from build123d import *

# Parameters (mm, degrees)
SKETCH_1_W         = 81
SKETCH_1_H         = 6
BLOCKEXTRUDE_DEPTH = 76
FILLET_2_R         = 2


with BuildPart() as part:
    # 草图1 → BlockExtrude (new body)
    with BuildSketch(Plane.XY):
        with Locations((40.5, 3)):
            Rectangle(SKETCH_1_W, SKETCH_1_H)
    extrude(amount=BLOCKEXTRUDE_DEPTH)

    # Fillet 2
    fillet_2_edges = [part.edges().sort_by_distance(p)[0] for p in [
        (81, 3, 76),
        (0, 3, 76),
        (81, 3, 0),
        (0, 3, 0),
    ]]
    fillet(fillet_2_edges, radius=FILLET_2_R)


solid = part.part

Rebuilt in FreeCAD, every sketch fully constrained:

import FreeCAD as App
import Part
import Sketcher
from FreeCAD import Vector
Q = App.Units.Quantity


def edges_at(feature, points):
    """Names of the edges that pass closest to the given points."""
    edges = feature.Shape.Edges
    near = lambda p: min(range(len(edges)), key=lambda i: edges[i].distToShape(Part.Vertex(*p))[0])
    return sorted({f"Edge{near(p) + 1}" for p in points})

doc = App.newDocument("Part")
body = doc.addObject("PartDesign::Body", "Body")

# Sketch on XY plane
sketch1 = body.newObject("Sketcher::SketchObject", "Sketch")
sketch1.AttachmentSupport = (doc.getObject("XY_Plane"), [""])
sketch1.MapMode = "FlatFace"
sketch1.addGeometry([
    Part.LineSegment(Vector(0, 6, 0), Vector(0, 0, 0)),
    Part.LineSegment(Vector(0, 0, 0), Vector(81, 0, 0)),
    Part.LineSegment(Vector(81, 0, 0), Vector(81, 6, 0)),
    Part.LineSegment(Vector(81, 6, 0), Vector(0, 6, 0)),
], False)
sketch1.addConstraint([
    Sketcher.Constraint("Coincident", 0, 2, 1, 1),
    Sketcher.Constraint("Coincident", 1, 2, 2, 1),
    Sketcher.Constraint("Coincident", 2, 2, 3, 1),
    Sketcher.Constraint("Coincident", 3, 2, 0, 1),
    Sketcher.Constraint("Vertical", 0),
    Sketcher.Constraint("Horizontal", 1),
    Sketcher.Constraint("Vertical", 2),
    Sketcher.Constraint("Horizontal", 3),
    Sketcher.Constraint("Coincident", 0, 2, -1, 1),
    Sketcher.Constraint("DistanceX", 1, 1, 1, 2, Q("81 mm")),
    Sketcher.Constraint("DistanceY", 0, 2, 0, 1, Q("6 mm")),
])
pad1 = body.newObject("PartDesign::Pad", "Pad")
pad1.Profile = sketch1
pad1.Length = 76
doc.recompute()

fillet = body.newObject("PartDesign::Fillet", "Fillet")
fillet.Base = (pad1, edges_at(pad1, [
    (81, 3, 76),
    (0, 3, 76),
    (81, 3, 0),
    (0, 3, 0),
]))
fillet.Radius = 2

doc.recompute()
